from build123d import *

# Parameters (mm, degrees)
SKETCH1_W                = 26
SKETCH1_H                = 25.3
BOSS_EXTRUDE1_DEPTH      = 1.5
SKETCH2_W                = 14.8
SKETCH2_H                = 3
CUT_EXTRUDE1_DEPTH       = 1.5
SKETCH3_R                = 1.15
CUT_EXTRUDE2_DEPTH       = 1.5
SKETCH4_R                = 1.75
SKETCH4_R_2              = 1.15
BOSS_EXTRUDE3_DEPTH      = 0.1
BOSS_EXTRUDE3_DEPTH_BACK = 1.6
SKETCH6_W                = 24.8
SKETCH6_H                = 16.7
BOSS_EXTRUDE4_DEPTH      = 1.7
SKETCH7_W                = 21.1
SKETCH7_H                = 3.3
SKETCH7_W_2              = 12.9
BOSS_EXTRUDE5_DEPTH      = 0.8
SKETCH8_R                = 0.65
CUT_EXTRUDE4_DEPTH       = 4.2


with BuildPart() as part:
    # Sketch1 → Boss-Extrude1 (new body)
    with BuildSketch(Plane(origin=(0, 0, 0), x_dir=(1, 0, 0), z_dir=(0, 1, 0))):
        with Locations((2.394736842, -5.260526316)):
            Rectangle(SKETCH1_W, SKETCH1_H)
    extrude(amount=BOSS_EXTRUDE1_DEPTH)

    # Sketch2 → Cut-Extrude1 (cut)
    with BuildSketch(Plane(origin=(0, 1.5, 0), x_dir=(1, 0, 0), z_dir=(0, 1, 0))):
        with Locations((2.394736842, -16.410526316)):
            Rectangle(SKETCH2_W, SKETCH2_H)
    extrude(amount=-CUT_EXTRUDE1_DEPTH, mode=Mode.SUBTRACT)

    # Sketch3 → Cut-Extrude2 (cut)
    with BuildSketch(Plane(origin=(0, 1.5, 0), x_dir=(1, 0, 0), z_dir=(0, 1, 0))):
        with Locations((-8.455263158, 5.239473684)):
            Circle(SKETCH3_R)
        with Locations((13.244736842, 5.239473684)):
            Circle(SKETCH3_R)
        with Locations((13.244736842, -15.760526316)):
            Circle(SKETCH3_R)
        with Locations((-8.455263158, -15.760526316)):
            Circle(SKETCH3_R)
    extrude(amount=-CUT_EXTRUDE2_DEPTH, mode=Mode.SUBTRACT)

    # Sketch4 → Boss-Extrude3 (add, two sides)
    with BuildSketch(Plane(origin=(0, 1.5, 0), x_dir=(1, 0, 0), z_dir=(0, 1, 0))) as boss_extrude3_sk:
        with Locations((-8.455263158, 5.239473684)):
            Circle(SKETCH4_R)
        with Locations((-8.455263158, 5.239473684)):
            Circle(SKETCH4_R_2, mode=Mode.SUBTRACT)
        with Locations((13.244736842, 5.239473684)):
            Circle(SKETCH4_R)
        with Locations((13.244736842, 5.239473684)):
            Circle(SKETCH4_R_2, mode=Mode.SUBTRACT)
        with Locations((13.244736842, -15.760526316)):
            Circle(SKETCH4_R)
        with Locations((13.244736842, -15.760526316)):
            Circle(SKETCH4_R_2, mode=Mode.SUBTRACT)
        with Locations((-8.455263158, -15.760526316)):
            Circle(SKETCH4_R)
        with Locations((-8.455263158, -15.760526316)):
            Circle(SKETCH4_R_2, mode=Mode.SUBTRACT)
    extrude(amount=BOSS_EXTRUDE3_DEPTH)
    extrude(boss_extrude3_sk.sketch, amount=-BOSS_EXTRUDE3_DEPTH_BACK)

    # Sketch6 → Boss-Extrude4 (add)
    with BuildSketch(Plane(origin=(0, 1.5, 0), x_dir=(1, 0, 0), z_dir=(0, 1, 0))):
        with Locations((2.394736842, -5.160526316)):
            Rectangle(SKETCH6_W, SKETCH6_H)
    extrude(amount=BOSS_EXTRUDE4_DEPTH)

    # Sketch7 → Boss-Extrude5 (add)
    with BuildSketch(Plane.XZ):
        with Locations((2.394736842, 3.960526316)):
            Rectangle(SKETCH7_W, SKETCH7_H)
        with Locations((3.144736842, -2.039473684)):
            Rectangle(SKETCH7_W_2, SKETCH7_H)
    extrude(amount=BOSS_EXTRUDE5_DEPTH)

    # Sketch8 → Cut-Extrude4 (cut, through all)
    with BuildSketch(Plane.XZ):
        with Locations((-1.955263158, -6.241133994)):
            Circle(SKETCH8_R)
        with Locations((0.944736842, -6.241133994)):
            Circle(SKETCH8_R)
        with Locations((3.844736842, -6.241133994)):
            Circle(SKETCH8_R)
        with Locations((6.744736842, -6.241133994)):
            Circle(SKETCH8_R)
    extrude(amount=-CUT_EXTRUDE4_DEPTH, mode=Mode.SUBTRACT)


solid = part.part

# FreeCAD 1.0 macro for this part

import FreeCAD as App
import Part
import Sketcher
from FreeCAD import Vector
Q = App.Units.Quantity


def add_polygon(sketch, points):
    """Adds a closed chain of lines whose ends are joined by coincident constraints."""
    first, n = sketch.GeometryCount, len(points)
    for a, b in zip(points, points[1:] + points[:1]):
        sketch.addGeometry(Part.LineSegment(App.Vector(*a, 0), App.Vector(*b, 0)), False)
    for i in range(n):
        sketch.addConstraint(Sketcher.Constraint("Coincident", first + i, 2, first + (i + 1) % n, 1))

doc = App.newDocument("Part")
body = doc.addObject("PartDesign::Body", "Body")

# Sketch on XZ plane
sketch1 = body.newObject("Sketcher::SketchObject", "Sketch")
sketch1.AttachmentSupport = (doc.getObject("XZ_Plane"), [""])
sketch1.MapMode = "FlatFace"
add_polygon(sketch1, [(-11, -7), (-11, 18), (15, 18), (15, -7)])  # lines 0-3
sketch1.addConstraint([
    Sketcher.Constraint("Vertical", 0),
    Sketcher.Constraint("Horizontal", 1),
    Sketcher.Constraint("Vertical", 2),
    Sketcher.Constraint("Horizontal", 3),
    Sketcher.Constraint("DistanceX", 1, 1, 1, 2, Q("26 mm")),
    Sketcher.Constraint("DistanceY", 0, 1, 0, 2, Q("25.3 mm")),
    Sketcher.Constraint("DistanceX", 0, 2, -1, 1, Q("10.605263 mm")),
    Sketcher.Constraint("DistanceY", -1, 1, 0, 2, Q("17.910526 mm")),
])
pad1 = body.newObject("PartDesign::Pad", "Pad")
pad1.Profile = sketch1
pad1.Length = 1.5
pad1.Reversed = True

# Sketch on XZ plane
sketch2 = body.newObject("Sketcher::SketchObject", "Sketch001")
sketch2.AttachmentSupport = (doc.getObject("XZ_Plane"), [""])
sketch2.MapMode = "FlatFace"
sketch2.AttachmentOffset = App.Placement(Vector(0, 0, -1.5), App.Rotation())
add_polygon(sketch2, [(-5, 14.9), (-5, 17.9), (9.8, 17.9), (9.8, 14.9)])  # lines 0-3
sketch2.addConstraint([
    Sketcher.Constraint("Vertical", 0),
    Sketcher.Constraint("Horizontal", 1),
    Sketcher.Constraint("Vertical", 2),
    Sketcher.Constraint("Horizontal", 3),
    Sketcher.Constraint("DistanceY", 0, 1, 0, 2, Q("3 mm")),
    Sketcher.Constraint("DistanceX", 1, 1, 1, 2, Q("14.8 mm")),
    Sketcher.Constraint("DistanceX", 0, 2, -1, 1, Q("5.005263 mm")),
    Sketcher.Constraint("DistanceY", -1, 1, 0, 2, Q("17.910526 mm")),
])
pocket1 = body.newObject("PartDesign::Pocket", "Pocket")
pocket1.Profile = sketch2
pocket1.Length = 1.5
pocket1.Reversed = True

# Sketch on XZ plane
sketch3 = body.newObject("Sketcher::SketchObject", "Sketch002")
sketch3.AttachmentSupport = (doc.getObject("XZ_Plane"), [""])
sketch3.MapMode = "FlatFace"
sketch3.AttachmentOffset = App.Placement(Vector(0, 0, -1.5), App.Rotation())
sketch3.addGeometry([
    Part.Circle(Vector(-8.5, -5.2, 0), Vector(0, 0, 1), 1.1),
    Part.Circle(Vector(13.2, -5.2, 0), Vector(0, 0, 1), 1.1),
    Part.Circle(Vector(13.2, 15.8, 0), Vector(0, 0, 1), 1.1),
    Part.Circle(Vector(-8.5, 15.8, 0), Vector(0, 0, 1), 1.1),
], False)
sketch3.addConstraint([
    Sketcher.Constraint("Equal", 0, 1),
    Sketcher.Constraint("Equal", 1, 2),
    Sketcher.Constraint("Equal", 2, 3),
    Sketcher.Constraint("Horizontal", 0, 3, 1, 3),
    Sketcher.Constraint("Horizontal", 2, 3, 3, 3),
    Sketcher.Constraint("Vertical", 1, 3, 2, 3),
    Sketcher.Constraint("Vertical", 0, 3, 3, 3),
    Sketcher.Constraint("Diameter", 0, Q("2.3 mm")),
    Sketcher.Constraint("DistanceY", 1, 3, 2, 3, Q("21 mm")),
    Sketcher.Constraint("DistanceX", 0, 3, 1, 3, Q("21.7 mm")),
    Sketcher.Constraint("DistanceX", 0, 3, -1, 1, Q("8.455263 mm")),
    Sketcher.Constraint("DistanceY", 0, 3, -1, 1, Q("5.239474 mm")),
])
pocket2 = body.newObject("PartDesign::Pocket", "Pocket001")
pocket2.Profile = sketch3
pocket2.Length = 1.5
pocket2.Reversed = True

# Sketch on XZ plane
sketch4 = body.newObject("Sketcher::SketchObject", "Sketch003")
sketch4.AttachmentSupport = (doc.getObject("XZ_Plane"), [""])
sketch4.MapMode = "FlatFace"
sketch4.AttachmentOffset = App.Placement(Vector(0, 0, -1.5), App.Rotation())
sketch4.addGeometry([
    Part.Circle(Vector(-8.5, -5.2, 0), Vector(0, 0, 1), 1.8),  # 0
    Part.Circle(Vector(-8.5, -5.2, 0), Vector(0, 0, 1), 1.1),  # 1
    Part.Circle(Vector(13.2, -5.2, 0), Vector(0, 0, 1), 1.8),  # 2
    Part.Circle(Vector(13.2, -5.2, 0), Vector(0, 0, 1), 1.1),  # 3
    Part.Circle(Vector(13.2, 15.8, 0), Vector(0, 0, 1), 1.8),  # 4
    Part.Circle(Vector(13.2, 15.8, 0), Vector(0, 0, 1), 1.1),  # 5
    Part.Circle(Vector(-8.5, 15.8, 0), Vector(0, 0, 1), 1.8),  # 6
    Part.Circle(Vector(-8.5, 15.8, 0), Vector(0, 0, 1), 1.1),  # 7
], False)
sketch4.addConstraint([
    Sketcher.Constraint("Coincident", 1, 3, 0, 3),
    Sketcher.Constraint("Coincident", 3, 3, 2, 3),
    Sketcher.Constraint("Coincident", 5, 3, 4, 3),
    Sketcher.Constraint("Coincident", 7, 3, 6, 3),
    Sketcher.Constraint("Equal", 0, 2),
    Sketcher.Constraint("Equal", 1, 3),
    Sketcher.Constraint("Equal", 2, 4),
    Sketcher.Constraint("Equal", 3, 5),
    Sketcher.Constraint("Equal", 4, 6),
    Sketcher.Constraint("Equal", 5, 7),
    Sketcher.Constraint("Horizontal", 1, 3, 2, 3),
    Sketcher.Constraint("Horizontal", 5, 3, 6, 3),
    Sketcher.Constraint("Vertical", 3, 3, 4, 3),
    Sketcher.Constraint("Vertical", 1, 3, 6, 3),
    Sketcher.Constraint("Diameter", 0, Q("3.5 mm")),
    Sketcher.Constraint("Diameter", 1, Q("2.3 mm")),
    Sketcher.Constraint("DistanceY", 2, 3, 4, 3, Q("21 mm")),
    Sketcher.Constraint("DistanceX", 0, 3, 2, 3, Q("21.7 mm")),
    Sketcher.Constraint("DistanceX", 0, 3, -1, 1, Q("8.455263 mm")),
    Sketcher.Constraint("DistanceY", 0, 3, -1, 1, Q("5.239474 mm")),
])
pad2 = body.newObject("PartDesign::Pad", "Pad001")
pad2.Profile = sketch4
pad2.Type = "TwoLengths"
pad2.Length = 0.1
pad2.Length2 = 1.6
pad2.Reversed = True

# Sketch on XZ plane
sketch5 = body.newObject("Sketcher::SketchObject", "Sketch004")
sketch5.AttachmentSupport = (doc.getObject("XZ_Plane"), [""])
sketch5.MapMode = "FlatFace"
sketch5.AttachmentOffset = App.Placement(Vector(0, 0, -1.5), App.Rotation())
add_polygon(sketch5, [(-10, -3), (-10, 14), (15, 14), (15, -3)])  # lines 0-3
sketch5.addConstraint([
    Sketcher.Constraint("Vertical", 0),
    Sketcher.Constraint("Horizontal", 1),
    Sketcher.Constraint("Vertical", 2),
    Sketcher.Constraint("Horizontal", 3),
    Sketcher.Constraint("DistanceX", 1, 1, 1, 2, Q("24.8 mm")),
    Sketcher.Constraint("DistanceY", 0, 1, 0, 2, Q("16.7 mm")),
    Sketcher.Constraint("DistanceX", 0, 2, -1, 1, Q("10.005263 mm")),
    Sketcher.Constraint("DistanceY", -1, 1, 0, 2, Q("13.510526 mm")),
])
pad3 = body.newObject("PartDesign::Pad", "Pad002")
pad3.Profile = sketch5
pad3.Length = 1.7
pad3.Reversed = True

# Sketch on XZ plane
sketch6 = body.newObject("Sketcher::SketchObject", "Sketch005")
sketch6.AttachmentSupport = (doc.getObject("XZ_Plane"), [""])
sketch6.MapMode = "FlatFace"
add_polygon(sketch6, [(-8.2, 5.6), (-8.2, 2.3), (12.9, 2.3), (12.9, 5.6)])  # lines 0-3
add_polygon(sketch6, [(-3.3, -0.4), (-3.3, -3.7), (9.6, -3.7), (9.6, -0.4)])  # lines 4-7
sketch6.addConstraint([
    Sketcher.Constraint("Vertical", 0),
    Sketcher.Constraint("Horizontal", 1),
    Sketcher.Constraint("Vertical", 2),
    Sketcher.Constraint("Horizontal", 3),
    Sketcher.Constraint("Vertical", 4),
    Sketcher.Constraint("Horizontal", 5),
    Sketcher.Constraint("Vertical", 6),
    Sketcher.Constraint("Horizontal", 7),
    Sketcher.Constraint("Equal", 2, 4),
    Sketcher.Constraint("DistanceX", 1, 1, 1, 2, Q("21.1 mm")),
    Sketcher.Constraint("DistanceX", 5, 1, 5, 2, Q("12.9 mm")),
    Sketcher.Constraint("DistanceY", 0, 2, 0, 1, Q("3.3 mm")),
    Sketcher.Constraint("DistanceY", 4, 2, 0, 2, Q("6 mm")),
    Sketcher.Constraint("DistanceX", 0, 2, 4, 2, Q("4.85 mm")),
    Sketcher.Constraint("DistanceX", 0, 2, -1, 1, Q("8.155263 mm")),
    Sketcher.Constraint("DistanceY", -1, 1, 0, 2, Q("2.310526 mm")),
])
pad4 = body.newObject("PartDesign::Pad", "Pad003")
pad4.Profile = sketch6
pad4.Length = 0.8

# Sketch on XZ plane
sketch7 = body.newObject("Sketcher::SketchObject", "Sketch006")
sketch7.AttachmentSupport = (doc.getObject("XZ_Plane"), [""])
sketch7.MapMode = "FlatFace"
sketch7.addGeometry([
    Part.Circle(Vector(-2, -6.2, 0), Vector(0, 0, 1), 0.7),
    Part.Circle(Vector(0.9, -6.2, 0), Vector(0, 0, 1), 0.7),
    Part.Circle(Vector(3.8, -6.2, 0), Vector(0, 0, 1), 0.7),
    Part.Circle(Vector(6.7, -6.2, 0), Vector(0, 0, 1), 0.7),
], False)
sketch7.addConstraint([
    Sketcher.Constraint("Equal", 0, 1),
    Sketcher.Constraint("Equal", 1, 2),
    Sketcher.Constraint("Equal", 2, 3),
    Sketcher.Constraint("Horizontal", 0, 3, 1, 3),
    Sketcher.Constraint("Horizontal", 1, 3, 2, 3),
    Sketcher.Constraint("Horizontal", 2, 3, 3, 3),
    Sketcher.Constraint("Diameter", 0, Q("1.3 mm")),
    Sketcher.Constraint("DistanceX", 0, 3, 1, 3, Q("2.9 mm")),
    Sketcher.Constraint("DistanceX", 1, 3, 2, 3, Q("2.9 mm")),
    Sketcher.Constraint("DistanceX", 2, 3, 3, 3, Q("2.9 mm")),
    Sketcher.Constraint("DistanceX", 0, 3, -1, 1, Q("1.955263 mm")),
    Sketcher.Constraint("DistanceY", 0, 3, -1, 1, Q("6.241134 mm")),
])
pocket3 = body.newObject("PartDesign::Pocket", "Pocket002")
pocket3.Profile = sketch7
pocket3.Type = "ThroughAll"

doc.recompute()
